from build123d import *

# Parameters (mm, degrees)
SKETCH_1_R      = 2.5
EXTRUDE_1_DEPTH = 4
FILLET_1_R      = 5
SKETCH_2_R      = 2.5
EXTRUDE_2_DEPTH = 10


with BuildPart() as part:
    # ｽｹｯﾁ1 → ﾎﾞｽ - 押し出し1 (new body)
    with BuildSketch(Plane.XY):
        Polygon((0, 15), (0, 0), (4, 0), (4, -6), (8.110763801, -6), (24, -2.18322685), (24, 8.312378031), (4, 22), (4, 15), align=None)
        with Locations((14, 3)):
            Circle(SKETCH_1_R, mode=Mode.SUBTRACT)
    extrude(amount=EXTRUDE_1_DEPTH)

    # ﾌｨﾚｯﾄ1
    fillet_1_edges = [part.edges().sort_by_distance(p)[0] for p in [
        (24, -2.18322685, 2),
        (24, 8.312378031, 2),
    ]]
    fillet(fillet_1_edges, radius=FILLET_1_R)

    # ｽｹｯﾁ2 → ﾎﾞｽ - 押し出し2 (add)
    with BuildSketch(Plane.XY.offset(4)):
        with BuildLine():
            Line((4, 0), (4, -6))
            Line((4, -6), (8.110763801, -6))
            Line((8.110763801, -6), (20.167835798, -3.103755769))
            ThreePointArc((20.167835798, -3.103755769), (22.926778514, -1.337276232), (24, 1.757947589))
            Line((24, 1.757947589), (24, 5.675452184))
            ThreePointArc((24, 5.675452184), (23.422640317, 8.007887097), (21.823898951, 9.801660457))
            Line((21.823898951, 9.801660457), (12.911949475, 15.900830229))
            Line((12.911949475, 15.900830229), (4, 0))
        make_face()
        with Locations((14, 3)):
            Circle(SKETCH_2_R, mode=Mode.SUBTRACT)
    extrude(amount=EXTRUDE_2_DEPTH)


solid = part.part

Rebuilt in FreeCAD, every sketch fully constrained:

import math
import FreeCAD as App
import Part
import Sketcher
Q = App.Units.Quantity


def edges_at(feature, points):
    """Names of the edges that pass closest to the given points."""
    edges = feature.Shape.Edges
    near = lambda p: min(range(len(edges)), key=lambda i: edges[i].distToShape(Part.Vertex(*p))[0])
    return sorted({f"Edge{near(p) + 1}" for p in points})

doc = App.newDocument("Part")
params = doc.addObject("Spreadsheet::Sheet", "Params")
for row, (alias, value) in enumerate([
    ("sketch1_diameter", "5 mm"),
    ("sketch1_width", "4 mm"),
    ("sketch1_height", "15 mm"),
    ("sketch1_height2", "6 mm"),
    ("sketch1_height3", "7 mm"),
    ("pad1_length", "4 mm"),
    ("fillet_radius", "5 mm"),
    ("sketch2_diameter", "5 mm"),
    ("sketch2_radius", "5 mm"),
    ("sketch2_height", "6 mm"),
    ("pad2_length", "10 mm"),
], start=1):
    params.set(f"A{row}", alias)
    params.set(f"B{row}", "=" + value)
    params.setAlias(f"B{row}", alias)

body = doc.addObject("PartDesign::Body", "Body")

# Sketch on XY plane
sketch1 = body.newObject("Sketcher::SketchObject", "Sketch")
sketch1.AttachmentSupport = (doc.getObject("XY_Plane"), [""])
sketch1.MapMode = "FlatFace"
sketch1.addGeometry(Part.LineSegment(App.Vector(0, 15, 0), App.Vector(0, 0, 0)), False)
sketch1.addGeometry(Part.LineSegment(App.Vector(0, 0, 0), App.Vector(4, 0, 0)), False)
sketch1.addGeometry(Part.LineSegment(App.Vector(4, 0, 0), App.Vector(4, -6, 0)), False)
sketch1.addGeometry(Part.LineSegment(App.Vector(4, -6, 0), App.Vector(8.1, -6, 0)), False)
sketch1.addGeometry(Part.LineSegment(App.Vector(8.1, -6, 0), App.Vector(24, -2.2, 0)), False)
sketch1.addGeometry(Part.LineSegment(App.Vector(24, -2.2, 0), App.Vector(24, 8.3, 0)), False)
sketch1.addGeometry(Part.LineSegment(App.Vector(24, 8.3, 0), App.Vector(4, 22, 0)), False)
sketch1.addGeometry(Part.LineSegment(App.Vector(4, 22, 0), App.Vector(4, 15, 0)), False)
sketch1.addGeometry(Part.LineSegment(App.Vector(4, 15, 0), App.Vector(0, 15, 0)), False)
sketch1.addGeometry(Part.Circle(App.Vector(14, 3, 0), App.Vector(0, 0, 1), 2.5), False)
sketch1.addConstraint(Sketcher.Constraint("Coincident", 0, 2, 1, 1))
sketch1.addConstraint(Sketcher.Constraint("Coincident", 1, 2, 2, 1))
sketch1.addConstraint(Sketcher.Constraint("Coincident", 2, 2, 3, 1))
sketch1.addConstraint(Sketcher.Constraint("Coincident", 3, 2, 4, 1))
sketch1.addConstraint(Sketcher.Constraint("Coincident", 4, 2, 5, 1))
sketch1.addConstraint(Sketcher.Constraint("Coincident", 5, 2, 6, 1))
sketch1.addConstraint(Sketcher.Constraint("Coincident", 6, 2, 7, 1))
sketch1.addConstraint(Sketcher.Constraint("Coincident", 7, 2, 8, 1))
sketch1.addConstraint(Sketcher.Constraint("Coincident", 8, 2, 0, 1))
sketch1.addConstraint(Sketcher.Constraint("Vertical", 0))
sketch1.addConstraint(Sketcher.Constraint("Horizontal", 1))
sketch1.addConstraint(Sketcher.Constraint("Vertical", 2))
sketch1.addConstraint(Sketcher.Constraint("Horizontal", 3))
sketch1.addConstraint(Sketcher.Constraint("Vertical", 5))
sketch1.addConstraint(Sketcher.Constraint("Vertical", 7))
sketch1.addConstraint(Sketcher.Constraint("Horizontal", 8))
sketch1.addConstraint(Sketcher.Constraint("Coincident", 0, 2, -1, 1))
sketch1.addConstraint(Sketcher.Constraint("Vertical", 2, 2, 6, 2))
sketch1.addConstraint(Sketcher.Constraint("Diameter", 9, Q("5 mm")))
sketch1.addConstraint(Sketcher.Constraint("DistanceX", 1, 1, 1, 2, Q("4 mm")))
sketch1.addConstraint(Sketcher.Constraint("DistanceY", 0, 2, 0, 1, Q("15 mm")))
sketch1.addConstraint(Sketcher.Constraint("DistanceY", 2, 2, 2, 1, Q("6 mm")))
sketch1.addConstraint(Sketcher.Constraint("DistanceY", 7, 2, 7, 1, Q("7 mm")))
sketch1.addConstraint(Sketcher.Constraint("DistanceX", -1, 1, 9, 3, Q("14 mm")))
sketch1.addConstraint(Sketcher.Constraint("DistanceY", -1, 1, 9, 3, Q("3 mm")))
sketch1.addConstraint(Sketcher.Constraint("DistanceX", -1, 1, 4, 2, Q("24 mm")))
sketch1.addConstraint(Sketcher.Constraint("DistanceX", 3, 1, 3, 2, Q("4.110764 mm")))
sketch1.addConstraint(Sketcher.Constraint("DistanceY", 5, 1, 5, 2, Q("10.495605 mm")))
sketch1.addConstraint(Sketcher.Constraint("DistanceY", -1, 1, 5, 2, Q("8.312378 mm")))
sketch1.setExpression("Constraints[18]", "Params.sketch1_diameter")
sketch1.setExpression("Constraints[19]", "Params.sketch1_width")
sketch1.setExpression("Constraints[20]", "Params.sketch1_height")
sketch1.setExpression("Constraints[21]", "Params.sketch1_height2")
sketch1.setExpression("Constraints[22]", "Params.sketch1_height3")
pad1 = body.newObject("PartDesign::Pad", "Pad")
pad1.Profile = sketch1
pad1.setExpression("Length", "Params.pad1_length")
doc.recompute()

fillet = body.newObject("PartDesign::Fillet", "Fillet")
fillet.Base = (pad1, edges_at(pad1, [(24, -2.183, 2), (24, 8.312, 2)]))
fillet.setExpression("Radius", "Params.fillet_radius")

# Sketch on XY plane
sketch2 = body.newObject("Sketcher::SketchObject", "Sketch001")
sketch2.AttachmentSupport = (doc.getObject("XY_Plane"), [""])
sketch2.MapMode = "FlatFace"
sketch2.AttachmentOffset = App.Placement(App.Vector(0, 0, 4), App.Rotation())
sketch2.addGeometry(Part.LineSegment(App.Vector(4, 0, 0), App.Vector(4, -6, 0)), False)
sketch2.addGeometry(Part.LineSegment(App.Vector(4, -6, 0), App.Vector(8.1, -6, 0)), False)
sketch2.addGeometry(Part.LineSegment(App.Vector(8.1, -6, 0), App.Vector(20.2, -3.1, 0)), False)
sketch2.addGeometry(Part.ArcOfCircle(Part.Circle(App.Vector(19, 1.8, 0), App.Vector(0, 0, 1), 5), math.radians(-76), math.radians(0)), False)
sketch2.addGeometry(Part.LineSegment(App.Vector(24, 1.8, 0), App.Vector(24, 5.7, 0)), False)
sketch2.addGeometry(Part.ArcOfCircle(Part.Circle(App.Vector(19, 5.7, 0), App.Vector(0, 0, 1), 5), math.radians(0), math.radians(56)), False)
sketch2.addGeometry(Part.LineSegment(App.Vector(21.8, 9.8, 0), App.Vector(12.9, 15.9, 0)), False)
sketch2.addGeometry(Part.LineSegment(App.Vector(12.9, 15.9, 0), App.Vector(4, 0, 0)), False)
sketch2.addGeometry(Part.Circle(App.Vector(14, 3, 0), App.Vector(0, 0, 1), 2.5), False)
sketch2.addConstraint(Sketcher.Constraint("Coincident", 0, 2, 1, 1))
sketch2.addConstraint(Sketcher.Constraint("Coincident", 1, 2, 2, 1))
sketch2.addConstraint(Sketcher.Constraint("Tangent", 2, 2, 3, 1))
sketch2.addConstraint(Sketcher.Constraint("Tangent", 3, 2, 4, 1))
sketch2.addConstraint(Sketcher.Constraint("Tangent", 4, 2, 5, 1))
sketch2.addConstraint(Sketcher.Constraint("Tangent", 5, 2, 6, 1))
sketch2.addConstraint(Sketcher.Constraint("Coincident", 6, 2, 7, 1))
sketch2.addConstraint(Sketcher.Constraint("Coincident", 7, 2, 0, 1))
sketch2.addConstraint(Sketcher.Constraint("Vertical", 0))
sketch2.addConstraint(Sketcher.Constraint("Horizontal", 1))
sketch2.addConstraint(Sketcher.Constraint("Vertical", 4))
sketch2.addConstraint(Sketcher.Constraint("Equal", 3, 5))
sketch2.addConstraint(Sketcher.Constraint("PointOnObject", 7, 2, -1))
sketch2.addConstraint(Sketcher.Constraint("Diameter", 8, Q("5 mm")))
sketch2.addConstraint(Sketcher.Constraint("Radius", 3, Q("5 mm")))
sketch2.addConstraint(Sketcher.Constraint("DistanceY", 0, 2, 0, 1, Q("6 mm")))
sketch2.addConstraint(Sketcher.Constraint("DistanceX", -1, 1, 3, 3, Q("19 mm")))
sketch2.addConstraint(Sketcher.Constraint("DistanceX", -1, 1, 8, 3, Q("14 mm")))
sketch2.addConstraint(Sketcher.Constraint("DistanceY", -1, 1, 8, 3, Q("3 mm")))
sketch2.addConstraint(Sketcher.Constraint("DistanceX", -1, 1, 0, 2, Q("4 mm")))
sketch2.addConstraint(Sketcher.Constraint("Distance", 6, Q("10.7992 mm")))
sketch2.addConstraint(Sketcher.Constraint("DistanceX", -1, 1, 5, 2, Q("21.823899 mm")))
sketch2.addConstraint(Sketcher.Constraint("Distance", 2, Q("12.400049 mm")))
sketch2.addConstraint(Sketcher.Constraint("Distance", 7, Q("18.22798 mm")))
sketch2.addConstraint(Sketcher.Constraint("DistanceX", 1, 1, 1, 2, Q("4.110764 mm")))
sketch2.setExpression("Constraints[13]", "Params.sketch2_diameter")
sketch2.setExpression("Constraints[14]", "Params.sketch2_radius")
sketch2.setExpression("Constraints[15]", "Params.sketch2_height")
pad2 = body.newObject("PartDesign::Pad", "Pad001")
pad2.Profile = sketch2
pad2.setExpression("Length", "Params.pad2_length")

doc.recompute()
